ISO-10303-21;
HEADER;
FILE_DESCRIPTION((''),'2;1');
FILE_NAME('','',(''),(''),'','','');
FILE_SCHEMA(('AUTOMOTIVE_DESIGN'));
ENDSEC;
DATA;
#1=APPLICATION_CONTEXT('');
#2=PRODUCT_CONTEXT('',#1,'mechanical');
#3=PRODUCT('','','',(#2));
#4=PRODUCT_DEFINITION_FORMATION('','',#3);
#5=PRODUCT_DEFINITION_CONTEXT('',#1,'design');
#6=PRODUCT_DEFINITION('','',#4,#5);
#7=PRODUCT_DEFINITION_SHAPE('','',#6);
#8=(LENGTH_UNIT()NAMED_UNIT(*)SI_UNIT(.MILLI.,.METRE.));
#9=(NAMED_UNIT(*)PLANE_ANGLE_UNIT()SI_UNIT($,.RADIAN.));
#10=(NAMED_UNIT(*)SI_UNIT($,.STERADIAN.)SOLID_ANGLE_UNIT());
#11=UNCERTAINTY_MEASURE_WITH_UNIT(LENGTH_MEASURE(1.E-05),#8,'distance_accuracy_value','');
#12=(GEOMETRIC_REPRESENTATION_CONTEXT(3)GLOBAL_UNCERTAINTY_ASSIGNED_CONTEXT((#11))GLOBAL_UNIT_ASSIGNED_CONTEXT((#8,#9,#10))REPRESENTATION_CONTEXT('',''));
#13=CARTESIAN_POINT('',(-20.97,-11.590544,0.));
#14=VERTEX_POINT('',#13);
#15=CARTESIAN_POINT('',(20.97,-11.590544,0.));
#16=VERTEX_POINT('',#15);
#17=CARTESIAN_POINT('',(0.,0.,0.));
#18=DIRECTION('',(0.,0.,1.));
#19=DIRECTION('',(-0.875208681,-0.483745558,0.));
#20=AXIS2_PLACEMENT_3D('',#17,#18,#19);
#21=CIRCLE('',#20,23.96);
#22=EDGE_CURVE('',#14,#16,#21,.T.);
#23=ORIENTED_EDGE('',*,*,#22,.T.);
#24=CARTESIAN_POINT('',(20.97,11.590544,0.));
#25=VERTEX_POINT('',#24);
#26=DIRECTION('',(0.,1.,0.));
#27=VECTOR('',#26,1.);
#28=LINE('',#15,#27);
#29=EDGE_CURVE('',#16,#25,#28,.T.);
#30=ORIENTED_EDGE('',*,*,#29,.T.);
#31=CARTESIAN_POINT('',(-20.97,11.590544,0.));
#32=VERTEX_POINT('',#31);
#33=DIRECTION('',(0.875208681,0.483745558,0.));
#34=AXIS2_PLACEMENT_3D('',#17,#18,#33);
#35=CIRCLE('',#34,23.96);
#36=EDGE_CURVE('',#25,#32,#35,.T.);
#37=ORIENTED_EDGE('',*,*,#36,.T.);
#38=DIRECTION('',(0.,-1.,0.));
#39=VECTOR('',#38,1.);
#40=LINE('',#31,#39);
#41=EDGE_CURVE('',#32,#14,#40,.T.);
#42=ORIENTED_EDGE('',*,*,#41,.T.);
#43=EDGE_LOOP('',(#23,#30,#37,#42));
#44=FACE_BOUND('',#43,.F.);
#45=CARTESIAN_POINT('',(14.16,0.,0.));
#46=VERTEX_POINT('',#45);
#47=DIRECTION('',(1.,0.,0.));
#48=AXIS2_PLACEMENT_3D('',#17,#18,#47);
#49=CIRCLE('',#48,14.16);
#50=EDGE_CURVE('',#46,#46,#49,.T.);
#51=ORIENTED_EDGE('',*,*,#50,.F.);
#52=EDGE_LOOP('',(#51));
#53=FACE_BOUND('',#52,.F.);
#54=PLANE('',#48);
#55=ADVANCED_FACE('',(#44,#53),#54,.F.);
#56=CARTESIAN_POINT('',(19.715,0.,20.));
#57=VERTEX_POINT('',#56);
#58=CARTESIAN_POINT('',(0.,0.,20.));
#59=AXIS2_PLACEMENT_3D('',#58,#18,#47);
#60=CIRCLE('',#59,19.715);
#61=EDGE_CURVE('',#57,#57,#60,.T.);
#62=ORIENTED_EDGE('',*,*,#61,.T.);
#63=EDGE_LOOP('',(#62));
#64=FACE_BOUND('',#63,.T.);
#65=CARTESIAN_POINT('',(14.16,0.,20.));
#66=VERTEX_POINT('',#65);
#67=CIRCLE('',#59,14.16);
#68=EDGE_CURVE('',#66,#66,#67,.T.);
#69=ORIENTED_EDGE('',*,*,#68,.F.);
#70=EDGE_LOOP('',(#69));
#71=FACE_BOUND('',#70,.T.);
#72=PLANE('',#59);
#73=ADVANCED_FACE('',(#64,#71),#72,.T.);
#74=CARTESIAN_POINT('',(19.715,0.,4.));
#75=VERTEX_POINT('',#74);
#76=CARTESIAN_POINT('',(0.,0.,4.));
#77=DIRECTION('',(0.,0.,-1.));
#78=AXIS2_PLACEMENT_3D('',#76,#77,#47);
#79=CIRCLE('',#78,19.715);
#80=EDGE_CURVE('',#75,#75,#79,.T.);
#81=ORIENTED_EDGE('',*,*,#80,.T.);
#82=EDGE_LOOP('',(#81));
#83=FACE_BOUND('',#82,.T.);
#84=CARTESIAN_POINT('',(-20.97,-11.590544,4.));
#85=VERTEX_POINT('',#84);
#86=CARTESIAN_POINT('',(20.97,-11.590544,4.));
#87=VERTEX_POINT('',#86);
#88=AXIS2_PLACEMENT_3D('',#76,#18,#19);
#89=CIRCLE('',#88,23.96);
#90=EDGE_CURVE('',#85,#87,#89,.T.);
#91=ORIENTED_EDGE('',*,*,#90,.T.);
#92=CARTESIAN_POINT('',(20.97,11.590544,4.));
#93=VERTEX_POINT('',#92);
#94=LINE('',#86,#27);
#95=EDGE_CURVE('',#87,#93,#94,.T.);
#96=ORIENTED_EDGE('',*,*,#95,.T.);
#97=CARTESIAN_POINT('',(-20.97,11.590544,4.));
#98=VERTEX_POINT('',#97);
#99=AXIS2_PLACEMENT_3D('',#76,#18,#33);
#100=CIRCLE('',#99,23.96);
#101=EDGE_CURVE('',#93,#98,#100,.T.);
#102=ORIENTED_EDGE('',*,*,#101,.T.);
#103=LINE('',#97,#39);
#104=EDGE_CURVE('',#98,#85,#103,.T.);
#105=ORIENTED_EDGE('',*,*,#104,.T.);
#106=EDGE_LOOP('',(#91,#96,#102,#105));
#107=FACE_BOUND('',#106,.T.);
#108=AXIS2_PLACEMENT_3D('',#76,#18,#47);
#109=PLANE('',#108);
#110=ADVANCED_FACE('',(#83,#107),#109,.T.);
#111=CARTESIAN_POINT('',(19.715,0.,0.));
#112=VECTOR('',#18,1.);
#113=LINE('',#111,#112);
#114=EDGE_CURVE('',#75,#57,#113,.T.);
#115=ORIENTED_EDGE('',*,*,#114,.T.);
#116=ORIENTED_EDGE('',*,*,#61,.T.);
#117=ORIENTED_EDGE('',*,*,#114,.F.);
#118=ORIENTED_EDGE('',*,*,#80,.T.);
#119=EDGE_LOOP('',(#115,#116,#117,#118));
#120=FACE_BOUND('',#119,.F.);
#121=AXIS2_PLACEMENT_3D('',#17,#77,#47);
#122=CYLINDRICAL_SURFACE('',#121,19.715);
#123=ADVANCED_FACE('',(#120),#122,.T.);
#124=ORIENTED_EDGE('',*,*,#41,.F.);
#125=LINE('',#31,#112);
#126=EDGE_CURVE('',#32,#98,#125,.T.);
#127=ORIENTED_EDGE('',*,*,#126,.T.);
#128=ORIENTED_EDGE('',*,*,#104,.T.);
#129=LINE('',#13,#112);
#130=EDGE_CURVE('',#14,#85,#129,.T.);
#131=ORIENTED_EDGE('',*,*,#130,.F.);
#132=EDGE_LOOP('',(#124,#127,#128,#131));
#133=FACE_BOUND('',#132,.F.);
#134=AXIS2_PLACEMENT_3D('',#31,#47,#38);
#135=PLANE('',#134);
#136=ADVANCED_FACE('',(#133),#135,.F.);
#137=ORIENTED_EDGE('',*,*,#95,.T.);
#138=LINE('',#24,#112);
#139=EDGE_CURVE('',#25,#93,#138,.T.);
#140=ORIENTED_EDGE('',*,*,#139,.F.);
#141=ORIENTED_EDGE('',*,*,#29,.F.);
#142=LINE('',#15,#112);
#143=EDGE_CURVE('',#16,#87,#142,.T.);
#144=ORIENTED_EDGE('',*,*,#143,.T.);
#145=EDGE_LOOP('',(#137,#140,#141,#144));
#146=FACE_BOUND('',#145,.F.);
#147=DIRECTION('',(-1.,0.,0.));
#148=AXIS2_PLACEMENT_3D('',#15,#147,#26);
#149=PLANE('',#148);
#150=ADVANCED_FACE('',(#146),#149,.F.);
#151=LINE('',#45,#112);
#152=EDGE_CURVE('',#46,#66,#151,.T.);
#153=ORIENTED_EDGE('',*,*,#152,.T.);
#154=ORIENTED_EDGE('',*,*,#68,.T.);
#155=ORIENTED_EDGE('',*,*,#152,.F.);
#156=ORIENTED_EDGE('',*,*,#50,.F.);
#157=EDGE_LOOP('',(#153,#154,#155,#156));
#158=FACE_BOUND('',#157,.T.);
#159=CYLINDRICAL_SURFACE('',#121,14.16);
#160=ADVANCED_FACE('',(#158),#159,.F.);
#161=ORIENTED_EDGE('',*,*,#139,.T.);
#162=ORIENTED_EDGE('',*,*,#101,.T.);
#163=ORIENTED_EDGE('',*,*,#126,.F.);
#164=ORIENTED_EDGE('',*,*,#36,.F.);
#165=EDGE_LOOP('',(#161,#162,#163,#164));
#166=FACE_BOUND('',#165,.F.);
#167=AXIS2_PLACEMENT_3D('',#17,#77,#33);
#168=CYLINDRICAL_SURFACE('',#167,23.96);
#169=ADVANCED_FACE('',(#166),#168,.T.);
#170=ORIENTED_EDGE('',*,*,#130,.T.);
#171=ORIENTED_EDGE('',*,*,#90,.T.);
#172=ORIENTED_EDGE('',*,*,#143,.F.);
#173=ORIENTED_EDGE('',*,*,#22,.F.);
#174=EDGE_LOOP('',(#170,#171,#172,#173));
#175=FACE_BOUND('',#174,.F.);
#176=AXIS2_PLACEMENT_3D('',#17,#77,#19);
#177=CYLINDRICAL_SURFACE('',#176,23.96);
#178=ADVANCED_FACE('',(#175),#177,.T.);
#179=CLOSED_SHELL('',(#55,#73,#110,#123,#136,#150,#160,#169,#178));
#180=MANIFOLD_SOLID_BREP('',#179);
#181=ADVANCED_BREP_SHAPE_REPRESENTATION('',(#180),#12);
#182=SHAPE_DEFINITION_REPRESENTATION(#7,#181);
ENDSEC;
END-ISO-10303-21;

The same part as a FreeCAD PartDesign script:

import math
import FreeCAD as App
import Part
import Sketcher
from FreeCAD import Vector
Q = App.Units.Quantity

doc = App.newDocument("Part")
params = doc.addObject("Spreadsheet::Sheet", "Params")
for row, (alias, value) in enumerate([
    ("sketch1_diameter", "36.76 mm"),
    ("sketch1_radius", "23.96 mm"),
    ("pad1_length", "4 mm"),
    ("sketch2_diameter", "39.43 mm"),
    ("sketch2_diameter2", "28.32 mm"),
    ("pad2_length", "20 mm"),
], start=1):
    params.set(f"A{row}", alias)
    params.set(f"B{row}", "=" + value)
    params.setAlias(f"B{row}", alias)

body = doc.addObject("PartDesign::Body", "Body")

# Sketch on XY plane
sketch1 = body.newObject("Sketcher::SketchObject", "Sketch")
sketch1.AttachmentSupport = (doc.getObject("XY_Plane"), [""])
sketch1.MapMode = "FlatFace"
sketch1.addGeometry([
    Part.LineSegment(Vector(20.97, -11.590544, 0), Vector(20.97, 11.590544, 0)),  # 0
    Part.ArcOfCircle(Part.Circle(Vector(0, 0, 0), Vector(0, 0, 1), 23.96), math.radians(28.930317), math.radians(151.069683)),  # 1
    Part.LineSegment(Vector(-20.97, 11.590544, 0), Vector(-20.97, -11.590544, 0)),  # 2
    Part.ArcOfCircle(Part.Circle(Vector(0, 0, 0), Vector(0, 0, 1), 23.96), math.radians(-151.069683), math.radians(-28.930317)),  # 3
    Part.Circle(Vector(0, 0, 0), Vector(0, 0, 1), 18.38),  # 4
], False)
sketch1.addConstraint([
    Sketcher.Constraint("Coincident", 0, 2, 1, 1),
    Sketcher.Constraint("Coincident", 1, 2, 2, 1),
    Sketcher.Constraint("Coincident", 2, 2, 3, 1),
    Sketcher.Constraint("Coincident", 3, 2, 0, 1),
    Sketcher.Constraint("Vertical", 0),
    Sketcher.Constraint("Vertical", 2),
    Sketcher.Constraint("Coincident", 1, 3, -1, 1),
    Sketcher.Constraint("Coincident", 3, 3, -1, 1),
    Sketcher.Constraint("Coincident", 4, 3, -1, 1),
    Sketcher.Constraint("Equal", 1, 3),
    Sketcher.Constraint("Horizontal", 0, 2, 1, 2),
    Sketcher.Constraint("Diameter", 4, Q("36.76 mm")),
    Sketcher.Constraint("Radius", 1, Q("23.96 mm")),
    Sketcher.Constraint("DistanceX", -1, 1, 0, 2, Q("20.97 mm")),
])
sketch1.setExpression("Constraints[11]", "Params.sketch1_diameter")
sketch1.setExpression("Constraints[12]", "Params.sketch1_radius")
pad1 = body.newObject("PartDesign::Pad", "Pad")
pad1.Profile = sketch1
pad1.setExpression("Length", "Params.pad1_length")

# Sketch on XY plane
sketch2 = body.newObject("Sketcher::SketchObject", "Sketch001")
sketch2.AttachmentSupport = (doc.getObject("XY_Plane"), [""])
sketch2.MapMode = "FlatFace"
sketch2.addGeometry([
    Part.Circle(Vector(0, 0, 0), Vector(0, 0, 1), 19.715),
    Part.Circle(Vector(0, 0, 0), Vector(0, 0, 1), 14.16),
], False)
sketch2.addConstraint([
    Sketcher.Constraint("Coincident", 0, 3, -1, 1),
    Sketcher.Constraint("Coincident", 1, 3, -1, 1),
    Sketcher.Constraint("Diameter", 0, Q("39.43 mm")),
    Sketcher.Constraint("Diameter", 1, Q("28.32 mm")),
])
sketch2.setExpression("Constraints[2]", "Params.sketch2_diameter")
sketch2.setExpression("Constraints[3]", "Params.sketch2_diameter2")
pad2 = body.newObject("PartDesign::Pad", "Pad001")
pad2.Profile = sketch2
pad2.setExpression("Length", "Params.pad2_length")

doc.recompute()
